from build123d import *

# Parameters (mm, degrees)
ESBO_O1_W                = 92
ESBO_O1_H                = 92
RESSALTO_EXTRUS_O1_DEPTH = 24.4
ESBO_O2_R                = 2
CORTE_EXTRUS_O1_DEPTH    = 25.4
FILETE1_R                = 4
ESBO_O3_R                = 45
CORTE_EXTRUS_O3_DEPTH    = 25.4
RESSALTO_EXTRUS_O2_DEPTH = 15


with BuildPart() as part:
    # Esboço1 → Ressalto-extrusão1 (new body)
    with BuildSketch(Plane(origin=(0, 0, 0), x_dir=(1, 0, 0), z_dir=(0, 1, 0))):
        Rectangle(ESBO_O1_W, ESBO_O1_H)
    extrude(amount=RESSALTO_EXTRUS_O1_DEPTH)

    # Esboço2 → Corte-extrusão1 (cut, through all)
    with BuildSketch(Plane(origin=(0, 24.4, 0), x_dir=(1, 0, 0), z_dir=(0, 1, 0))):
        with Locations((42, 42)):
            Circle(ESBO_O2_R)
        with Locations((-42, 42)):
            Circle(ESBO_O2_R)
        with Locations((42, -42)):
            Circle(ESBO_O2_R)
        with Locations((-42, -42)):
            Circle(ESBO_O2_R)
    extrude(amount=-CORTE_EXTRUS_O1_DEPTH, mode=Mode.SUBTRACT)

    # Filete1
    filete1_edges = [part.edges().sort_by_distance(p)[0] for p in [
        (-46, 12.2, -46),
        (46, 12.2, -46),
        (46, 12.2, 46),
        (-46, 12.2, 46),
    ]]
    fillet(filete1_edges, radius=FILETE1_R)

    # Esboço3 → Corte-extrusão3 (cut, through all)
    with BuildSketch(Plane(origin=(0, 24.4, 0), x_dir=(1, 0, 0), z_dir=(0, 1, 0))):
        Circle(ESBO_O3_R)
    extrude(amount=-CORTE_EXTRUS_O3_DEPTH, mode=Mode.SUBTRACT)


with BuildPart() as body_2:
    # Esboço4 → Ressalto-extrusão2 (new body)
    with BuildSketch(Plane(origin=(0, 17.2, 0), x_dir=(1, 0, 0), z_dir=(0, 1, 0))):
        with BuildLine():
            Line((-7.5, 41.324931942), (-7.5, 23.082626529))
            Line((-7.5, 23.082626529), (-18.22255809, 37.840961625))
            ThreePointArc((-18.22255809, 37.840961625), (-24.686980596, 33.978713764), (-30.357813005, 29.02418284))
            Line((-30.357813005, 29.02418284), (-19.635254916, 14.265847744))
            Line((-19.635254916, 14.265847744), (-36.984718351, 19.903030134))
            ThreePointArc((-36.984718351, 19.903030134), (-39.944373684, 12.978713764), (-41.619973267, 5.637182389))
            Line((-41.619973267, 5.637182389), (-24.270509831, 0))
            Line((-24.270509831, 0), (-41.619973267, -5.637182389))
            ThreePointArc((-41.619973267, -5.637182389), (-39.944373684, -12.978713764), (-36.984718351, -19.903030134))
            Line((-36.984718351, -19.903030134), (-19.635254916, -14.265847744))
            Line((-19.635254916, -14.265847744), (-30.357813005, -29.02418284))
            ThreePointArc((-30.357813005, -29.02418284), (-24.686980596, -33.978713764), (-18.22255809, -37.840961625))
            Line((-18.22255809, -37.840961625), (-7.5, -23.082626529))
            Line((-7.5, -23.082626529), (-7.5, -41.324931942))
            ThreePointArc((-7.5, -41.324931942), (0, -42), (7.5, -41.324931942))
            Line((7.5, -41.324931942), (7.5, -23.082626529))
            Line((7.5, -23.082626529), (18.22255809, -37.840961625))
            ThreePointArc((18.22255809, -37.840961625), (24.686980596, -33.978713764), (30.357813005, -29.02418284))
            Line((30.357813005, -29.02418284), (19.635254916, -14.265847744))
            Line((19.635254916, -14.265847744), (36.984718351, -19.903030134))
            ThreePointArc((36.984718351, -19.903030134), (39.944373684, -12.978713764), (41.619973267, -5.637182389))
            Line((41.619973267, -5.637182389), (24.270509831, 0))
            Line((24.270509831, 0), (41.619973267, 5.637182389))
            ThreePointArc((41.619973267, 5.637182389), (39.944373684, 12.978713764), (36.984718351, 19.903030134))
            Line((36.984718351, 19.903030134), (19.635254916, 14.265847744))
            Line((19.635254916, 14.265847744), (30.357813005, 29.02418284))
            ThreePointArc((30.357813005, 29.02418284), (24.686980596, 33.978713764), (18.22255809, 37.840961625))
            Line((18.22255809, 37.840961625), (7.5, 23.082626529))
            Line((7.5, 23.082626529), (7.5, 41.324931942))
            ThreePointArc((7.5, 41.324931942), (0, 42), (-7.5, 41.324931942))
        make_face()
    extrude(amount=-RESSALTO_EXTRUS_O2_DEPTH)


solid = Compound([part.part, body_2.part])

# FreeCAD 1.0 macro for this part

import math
import FreeCAD as App
import Part
import Sketcher
Q = App.Units.Quantity


def edges_at(feature, points):
    """Names of the edges that pass closest to the given points."""
    edges = feature.Shape.Edges
    near = lambda p: min(range(len(edges)), key=lambda i: edges[i].distToShape(Part.Vertex(*p))[0])
    return sorted({f"Edge{near(p) + 1}" for p in points})


def add_polygon(sketch, points):
    """Adds a closed chain of lines whose ends are joined by coincident constraints."""
    first, n = sketch.GeometryCount, len(points)
    for a, b in zip(points, points[1:] + points[:1]):
        sketch.addGeometry(Part.LineSegment(App.Vector(*a, 0), App.Vector(*b, 0)), False)
    for i in range(n):
        sketch.addConstraint(Sketcher.Constraint("Coincident", first + i, 2, first + (i + 1) % n, 1))

doc = App.newDocument("Part")
body = doc.addObject("PartDesign::Body", "Body")

sketch1 = doc.addObject("Sketcher::SketchObject", "Sketch")
body.addObject(sketch1)
sketch1.AttachmentSupport = (doc.XZ_Plane, [""])
sketch1.MapMode = "FlatFace"
add_polygon(sketch1, [(-46, -46), (-46, 46), (46, 46), (46, -46)])
sketch1.addConstraint([
    Sketcher.Constraint("Vertical", 0),
    Sketcher.Constraint("Horizontal", 1),
    Sketcher.Constraint("Vertical", 2),
    Sketcher.Constraint("Horizontal", 3),
    Sketcher.Constraint("Symmetric", 0, 2, 2, 2, -1, 1),
    Sketcher.Constraint("Equal", 3, 0),
    Sketcher.Constraint("DistanceX", 1, 1, 1, 2, Q("92 mm")),
])
pad1 = doc.addObject("PartDesign::Pad", "Pad")
body.addObject(pad1)
pad1.Profile = sketch1
pad1.Length = 24.4
pad1.Reversed = True

sketch2 = doc.addObject("Sketcher::SketchObject", "Sketch001")
body.addObject(sketch2)
sketch2.AttachmentSupport = (doc.XZ_Plane, [""])
sketch2.MapMode = "FlatFace"
sketch2.AttachmentOffset = App.Placement(App.Vector(0, 0, -24.4), App.Rotation())
sketch2.addGeometry([
    Part.Circle(App.Vector(42, -42, 0), App.Vector(0, 0, 1), 2),
    Part.Circle(App.Vector(-42, -42, 0), App.Vector(0, 0, 1), 2),
    Part.Circle(App.Vector(42, 42, 0), App.Vector(0, 0, 1), 2),
    Part.Circle(App.Vector(-42, 42, 0), App.Vector(0, 0, 1), 2),
], False)
sketch2.addConstraint([
    Sketcher.Constraint("Equal", 0, 1),
    Sketcher.Constraint("Equal", 1, 2),
    Sketcher.Constraint("Equal", 2, 3),
    Sketcher.Constraint("Symmetric", 1, 3, 2, 3, -1, 1),
    Sketcher.Constraint("Symmetric", 0, 3, 3, 3, -1, 1),
    Sketcher.Constraint("Symmetric", 0, 3, 1, 3, -2),
    Sketcher.Constraint("Diameter", 0, Q("4 mm")),
    Sketcher.Constraint("DistanceX", -1, 1, 0, 3, Q("42 mm")),
    Sketcher.Constraint("DistanceY", 0, 3, -1, 1, Q("42 mm")),
])
pocket1 = doc.addObject("PartDesign::Pocket", "Pocket")
body.addObject(pocket1)
pocket1.Profile = sketch2
pocket1.Type = "ThroughAll"
pocket1.Reversed = True
doc.recompute()

fillet = doc.addObject("PartDesign::Fillet", "Fillet")
body.addObject(fillet)
fillet.Base = (pocket1, edges_at(pocket1, [
    (-46, 12.2, -46),
    (46, 12.2, -46),
    (46, 12.2, 46),
    (-46, 12.2, 46),
]))
fillet.Radius = 4

sketch3 = doc.addObject("Sketcher::SketchObject", "Sketch002")
body.addObject(sketch3)
sketch3.AttachmentSupport = (doc.XZ_Plane, [""])
sketch3.MapMode = "FlatFace"
sketch3.AttachmentOffset = App.Placement(App.Vector(0, 0, -24.4), App.Rotation())
sketch3.addGeometry(Part.Circle(App.Vector(0, 0, 0), App.Vector(0, 0, 1), 45), False)
sketch3.addConstraint([
    Sketcher.Constraint("Coincident", 0, 3, -1, 1),
    Sketcher.Constraint("Diameter", 0, Q("90 mm")),
])
pocket2 = doc.addObject("PartDesign::Pocket", "Pocket001")
body.addObject(pocket2)
pocket2.Profile = sketch3
pocket2.Type = "ThroughAll"
pocket2.Reversed = True
body2 = doc.addObject("PartDesign::Body", "Body001")

sketch4 = doc.addObject("Sketcher::SketchObject", "Sketch003")
body2.addObject(sketch4)
sketch4.AttachmentSupport = (doc.getObject("XZ_Plane001"), [""])
sketch4.MapMode = "FlatFace"
sketch4.AttachmentOffset = App.Placement(App.Vector(0, 0, -17.2), App.Rotation())
sketch4.addGeometry([
    Part.LineSegment(App.Vector(-7.5, -41.324932, 0), App.Vector(-7.5, -23.082627, 0)),
    Part.LineSegment(App.Vector(-7.5, -23.082627, 0), App.Vector(-18.222558, -37.840962, 0)),
    Part.ArcOfCircle(Part.Circle(App.Vector(0, 0, 0), App.Vector(0, 0, 1), 42), math.radians(-136.286561), math.radians(-115.713439)),
    Part.LineSegment(App.Vector(-30.357813, -29.024183, 0), App.Vector(-19.635255, -14.265848, 0)),
    Part.LineSegment(App.Vector(-19.635255, -14.265848, 0), App.Vector(-36.984718, -19.90303, 0)),
    Part.ArcOfCircle(Part.Circle(App.Vector(0, 0, 0), App.Vector(0, 0, 1), 42), math.radians(-172.286561), math.radians(-151.713439)),
    Part.LineSegment(App.Vector(-41.619973, -5.637182, 0), App.Vector(-24.27051, 0, 0)),
    Part.LineSegment(App.Vector(-24.27051, 0, 0), App.Vector(-41.619973, 5.637182, 0)),
    Part.ArcOfCircle(Part.Circle(App.Vector(0, 0, 0), App.Vector(0, 0, 1), 42), math.radians(151.713439), math.radians(172.286561)),
    Part.LineSegment(App.Vector(-36.984718, 19.90303, 0), App.Vector(-19.635255, 14.265848, 0)),
    Part.LineSegment(App.Vector(-19.635255, 14.265848, 0), App.Vector(-30.357813, 29.024183, 0)),
    Part.ArcOfCircle(Part.Circle(App.Vector(0, 0, 0), App.Vector(0, 0, 1), 42), math.radians(115.713439), math.radians(136.286561)),
    Part.LineSegment(App.Vector(-18.222558, 37.840962, 0), App.Vector(-7.5, 23.082627, 0)),
    Part.LineSegment(App.Vector(-7.5, 23.082627, 0), App.Vector(-7.5, 41.324932, 0)),
    Part.ArcOfCircle(Part.Circle(App.Vector(0, 0, 0), App.Vector(0, 0, 1), 42), math.radians(79.713439), math.radians(100.286561)),
    Part.LineSegment(App.Vector(7.5, 41.324932, 0), App.Vector(7.5, 23.082627, 0)),
    Part.LineSegment(App.Vector(7.5, 23.082627, 0), App.Vector(18.222558, 37.840962, 0)),
    Part.ArcOfCircle(Part.Circle(App.Vector(0, 0, 0), App.Vector(0, 0, 1), 42), math.radians(43.713439), math.radians(64.286561)),
    Part.LineSegment(App.Vector(30.357813, 29.024183, 0), App.Vector(19.635255, 14.265848, 0)),
    Part.LineSegment(App.Vector(19.635255, 14.265848, 0), App.Vector(36.984718, 19.90303, 0)),
    Part.ArcOfCircle(Part.Circle(App.Vector(0, 0, 0), App.Vector(0, 0, 1), 42), math.radians(7.713439), math.radians(28.286561)),
    Part.LineSegment(App.Vector(41.619973, 5.637182, 0), App.Vector(24.27051, 0, 0)),
    Part.LineSegment(App.Vector(24.27051, 0, 0), App.Vector(41.619973, -5.637182, 0)),
    Part.ArcOfCircle(Part.Circle(App.Vector(0, 0, 0), App.Vector(0, 0, 1), 42), math.radians(-28.286561), math.radians(-7.713439)),
    Part.LineSegment(App.Vector(36.984718, -19.90303, 0), App.Vector(19.635255, -14.265848, 0)),
    Part.LineSegment(App.Vector(19.635255, -14.265848, 0), App.Vector(30.357813, -29.024183, 0)),
    Part.ArcOfCircle(Part.Circle(App.Vector(0, 0, 0), App.Vector(0, 0, 1), 42), math.radians(-64.286561), math.radians(-43.713439)),
    Part.LineSegment(App.Vector(18.222558, -37.840962, 0), App.Vector(7.5, -23.082627, 0)),
    Part.LineSegment(App.Vector(7.5, -23.082627, 0), App.Vector(7.5, -41.324932, 0)),
    Part.ArcOfCircle(Part.Circle(App.Vector(0, 0, 0), App.Vector(0, 0, 1), 42), math.radians(-100.286561), math.radians(-79.713439)),
], False)
sketch4.addConstraint([
    Sketcher.Constraint("Coincident", 0, 2, 1, 1),
    Sketcher.Constraint("Coincident", 1, 2, 2, 2),
    Sketcher.Constraint("Coincident", 2, 1, 3, 1),
    Sketcher.Constraint("Coincident", 3, 2, 4, 1),
    Sketcher.Constraint("Coincident", 4, 2, 5, 2),
    Sketcher.Constraint("Coincident", 5, 1, 6, 1),
    Sketcher.Constraint("Coincident", 6, 2, 7, 1),
    Sketcher.Constraint("Coincident", 7, 2, 8, 2),
    Sketcher.Constraint("Coincident", 8, 1, 9, 1),
    Sketcher.Constraint("Coincident", 9, 2, 10, 1),
    Sketcher.Constraint("Coincident", 10, 2, 11, 2),
    Sketcher.Constraint("Coincident", 11, 1, 12, 1),
    Sketcher.Constraint("Coincident", 12, 2, 13, 1),
    Sketcher.Constraint("Coincident", 13, 2, 14, 2),
    Sketcher.Constraint("Coincident", 14, 1, 15, 1),
    Sketcher.Constraint("Coincident", 15, 2, 16, 1),
    Sketcher.Constraint("Coincident", 16, 2, 17, 2),
    Sketcher.Constraint("Coincident", 17, 1, 18, 1),
    Sketcher.Constraint("Coincident", 18, 2, 19, 1),
    Sketcher.Constraint("Coincident", 19, 2, 20, 2),
    Sketcher.Constraint("Coincident", 20, 1, 21, 1),
    Sketcher.Constraint("Coincident", 21, 2, 22, 1),
    Sketcher.Constraint("Coincident", 22, 2, 23, 2),
    Sketcher.Constraint("Coincident", 23, 1, 24, 1),
    Sketcher.Constraint("Coincident", 24, 2, 25, 1),
    Sketcher.Constraint("Coincident", 25, 2, 26, 2),
    Sketcher.Constraint("Coincident", 26, 1, 27, 1),
    Sketcher.Constraint("Coincident", 27, 2, 28, 1),
    Sketcher.Constraint("Coincident", 28, 2, 29, 2),
    Sketcher.Constraint("Coincident", 29, 1, 0, 1),
    Sketcher.Constraint("Vertical", 0),
    Sketcher.Constraint("Vertical", 13),
    Sketcher.Constraint("Vertical", 15),
    Sketcher.Constraint("Vertical", 28),
    Sketcher.Constraint("Coincident", 2, 3, -1, 1),
    Sketcher.Constraint("Coincident", 5, 3, -1, 1),
    Sketcher.Constraint("Coincident", 8, 3, -1, 1),
    Sketcher.Constraint("Coincident", 11, 3, -1, 1),
    Sketcher.Constraint("Coincident", 14, 3, -1, 1),
    Sketcher.Constraint("Coincident", 17, 3, -1, 1),
    Sketcher.Constraint("Coincident", 20, 3, -1, 1),
    Sketcher.Constraint("Coincident", 23, 3, -1, 1),
    Sketcher.Constraint("Coincident", 26, 3, -1, 1),
    Sketcher.Constraint("Coincident", 29, 3, -1, 1),
    Sketcher.Constraint("Equal", 2, 5),
    Sketcher.Constraint("Equal", 5, 8),
    Sketcher.Constraint("Equal", 8, 11),
    Sketcher.Constraint("Equal", 11, 14),
    Sketcher.Constraint("Equal", 14, 17),
    Sketcher.Constraint("Equal", 17, 20),
    Sketcher.Constraint("Equal", 20, 23),
    Sketcher.Constraint("Equal", 23, 26),
    Sketcher.Constraint("Equal", 26, 29),
    Sketcher.Constraint("Symmetric", 0, 2, 15, 2, -1, 1),
    Sketcher.Constraint("Symmetric", 3, 2, 18, 2, -1, 1),
    Sketcher.Constraint("Symmetric", 6, 2, 21, 2, -1, 1),
    Sketcher.Constraint("Symmetric", 9, 2, 24, 2, -1, 1),
    Sketcher.Constraint("Symmetric", 12, 2, 27, 2, -1, 1),
    Sketcher.Constraint("Symmetric", 12, 2, 15, 2, -2),
    Sketcher.Constraint("Symmetric", 9, 2, 18, 2, -2),
    Sketcher.Constraint("PointOnObject", 6, 2, -1),
    Sketcher.Constraint("Parallel", 1, 3),
    Sketcher.Constraint("Parallel", 4, 6),
    Sketcher.Constraint("Parallel", 7, 9),
    Sketcher.Constraint("Parallel", 10, 12),
    Sketcher.Constraint("Parallel", 3, 16),
    Sketcher.Constraint("Parallel", 16, 18),
    Sketcher.Constraint("Parallel", 6, 19),
    Sketcher.Constraint("Parallel", 19, 21),
    Sketcher.Constraint("Parallel", 9, 22),
    Sketcher.Constraint("Parallel", 22, 24),
    Sketcher.Constraint("Parallel", 12, 25),
    Sketcher.Constraint("Parallel", 25, 27),
    Sketcher.Constraint("Horizontal", 11, 1, 16, 2),
    Sketcher.Constraint("Horizontal", 8, 1, 19, 2),
    Sketcher.Constraint("Equal", 1, 3),
    Sketcher.Constraint("Equal", 3, 4),
    Sketcher.Constraint("Equal", 4, 6),
    Sketcher.Constraint("Radius", 2, Q("42 mm")),
    Sketcher.Constraint("Angle", 1, Q("-126 deg")),
    Sketcher.Constraint("Angle", 4, Q("-162 deg")),
    Sketcher.Constraint("DistanceX", 13, 2, 14, 1, Q("15 mm")),
    Sketcher.Constraint("DistanceY", 7, 2, 10, 2, Q("23.387 mm")),
])
pad2 = doc.addObject("PartDesign::Pad", "Pad001")
body2.addObject(pad2)
pad2.Profile = sketch4
pad2.Length = 15

doc.recompute()
